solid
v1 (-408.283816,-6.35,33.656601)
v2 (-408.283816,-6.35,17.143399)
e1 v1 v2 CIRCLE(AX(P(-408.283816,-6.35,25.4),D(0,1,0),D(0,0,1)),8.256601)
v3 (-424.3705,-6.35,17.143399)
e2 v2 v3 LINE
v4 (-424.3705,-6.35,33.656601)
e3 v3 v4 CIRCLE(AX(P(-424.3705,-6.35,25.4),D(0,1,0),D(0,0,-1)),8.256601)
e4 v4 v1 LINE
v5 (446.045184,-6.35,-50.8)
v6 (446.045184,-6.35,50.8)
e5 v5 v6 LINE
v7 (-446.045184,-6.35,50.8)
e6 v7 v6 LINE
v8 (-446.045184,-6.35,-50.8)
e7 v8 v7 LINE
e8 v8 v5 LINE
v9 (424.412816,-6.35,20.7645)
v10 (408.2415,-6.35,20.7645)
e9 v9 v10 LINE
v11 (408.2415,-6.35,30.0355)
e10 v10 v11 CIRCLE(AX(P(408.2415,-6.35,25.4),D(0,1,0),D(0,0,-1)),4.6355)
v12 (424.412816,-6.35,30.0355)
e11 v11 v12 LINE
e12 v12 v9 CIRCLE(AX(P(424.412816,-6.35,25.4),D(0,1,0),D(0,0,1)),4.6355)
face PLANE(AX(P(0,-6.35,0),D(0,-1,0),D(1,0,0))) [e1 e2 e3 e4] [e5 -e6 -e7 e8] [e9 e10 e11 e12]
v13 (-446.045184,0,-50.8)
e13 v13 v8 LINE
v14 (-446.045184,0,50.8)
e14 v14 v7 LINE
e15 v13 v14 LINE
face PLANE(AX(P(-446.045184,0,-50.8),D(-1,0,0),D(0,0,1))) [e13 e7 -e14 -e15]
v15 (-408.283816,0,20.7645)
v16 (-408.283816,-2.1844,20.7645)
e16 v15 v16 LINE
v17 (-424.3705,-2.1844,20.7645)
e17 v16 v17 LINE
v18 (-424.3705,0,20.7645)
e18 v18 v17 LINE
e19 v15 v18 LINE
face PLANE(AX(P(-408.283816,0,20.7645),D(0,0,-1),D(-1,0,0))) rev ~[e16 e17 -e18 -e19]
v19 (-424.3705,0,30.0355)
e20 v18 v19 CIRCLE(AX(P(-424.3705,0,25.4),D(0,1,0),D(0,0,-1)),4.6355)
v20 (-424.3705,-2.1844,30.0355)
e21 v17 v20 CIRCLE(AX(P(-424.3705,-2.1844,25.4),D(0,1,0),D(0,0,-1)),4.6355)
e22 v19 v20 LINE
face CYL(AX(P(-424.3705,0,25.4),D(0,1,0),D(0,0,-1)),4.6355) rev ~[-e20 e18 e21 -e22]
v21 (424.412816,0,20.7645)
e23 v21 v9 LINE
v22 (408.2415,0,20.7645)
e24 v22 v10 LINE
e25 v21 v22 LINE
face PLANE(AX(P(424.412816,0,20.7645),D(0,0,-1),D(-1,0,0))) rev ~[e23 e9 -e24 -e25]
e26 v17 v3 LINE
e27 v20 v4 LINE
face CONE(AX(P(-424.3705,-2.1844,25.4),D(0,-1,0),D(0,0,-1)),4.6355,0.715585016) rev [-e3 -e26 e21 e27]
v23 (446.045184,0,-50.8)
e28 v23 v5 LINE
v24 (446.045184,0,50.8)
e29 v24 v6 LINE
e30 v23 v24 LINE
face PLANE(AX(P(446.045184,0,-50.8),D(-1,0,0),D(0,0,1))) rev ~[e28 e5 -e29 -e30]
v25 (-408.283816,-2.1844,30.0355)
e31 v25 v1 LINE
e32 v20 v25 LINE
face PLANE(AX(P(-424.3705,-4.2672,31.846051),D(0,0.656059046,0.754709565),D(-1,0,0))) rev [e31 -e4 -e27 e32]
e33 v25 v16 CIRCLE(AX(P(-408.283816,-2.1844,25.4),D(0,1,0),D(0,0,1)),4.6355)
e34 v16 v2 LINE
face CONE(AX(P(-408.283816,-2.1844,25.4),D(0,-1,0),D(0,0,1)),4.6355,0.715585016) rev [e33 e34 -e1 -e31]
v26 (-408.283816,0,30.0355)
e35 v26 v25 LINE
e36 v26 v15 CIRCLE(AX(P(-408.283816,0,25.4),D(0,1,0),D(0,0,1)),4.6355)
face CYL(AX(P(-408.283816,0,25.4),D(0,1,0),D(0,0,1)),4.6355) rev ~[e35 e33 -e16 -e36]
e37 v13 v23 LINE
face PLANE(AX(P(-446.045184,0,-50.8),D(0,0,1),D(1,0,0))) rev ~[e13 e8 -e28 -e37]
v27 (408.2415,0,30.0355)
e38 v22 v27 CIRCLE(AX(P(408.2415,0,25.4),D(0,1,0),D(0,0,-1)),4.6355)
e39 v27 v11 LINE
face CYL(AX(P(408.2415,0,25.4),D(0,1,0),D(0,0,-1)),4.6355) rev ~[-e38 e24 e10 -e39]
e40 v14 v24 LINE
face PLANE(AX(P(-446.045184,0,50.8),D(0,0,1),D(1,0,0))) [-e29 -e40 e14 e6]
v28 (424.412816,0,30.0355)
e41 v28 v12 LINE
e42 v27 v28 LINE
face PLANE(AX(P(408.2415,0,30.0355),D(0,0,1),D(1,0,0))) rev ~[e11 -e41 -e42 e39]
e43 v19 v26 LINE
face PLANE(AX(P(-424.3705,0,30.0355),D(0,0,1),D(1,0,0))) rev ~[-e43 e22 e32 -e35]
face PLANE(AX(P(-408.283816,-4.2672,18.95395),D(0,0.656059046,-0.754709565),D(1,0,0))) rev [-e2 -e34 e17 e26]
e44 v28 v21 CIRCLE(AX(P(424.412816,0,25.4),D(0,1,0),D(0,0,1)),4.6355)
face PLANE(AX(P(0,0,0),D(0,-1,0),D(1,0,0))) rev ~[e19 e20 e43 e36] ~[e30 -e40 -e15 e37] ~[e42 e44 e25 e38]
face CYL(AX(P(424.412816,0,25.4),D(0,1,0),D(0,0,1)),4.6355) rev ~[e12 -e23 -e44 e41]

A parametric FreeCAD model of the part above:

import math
import FreeCAD as App
import Part
import Sketcher
from FreeCAD import Vector
Q = App.Units.Quantity


def edges_at(feature, points):
    """Names of the edges that pass closest to the given points."""
    edges = feature.Shape.Edges
    near = lambda p: min(range(len(edges)), key=lambda i: edges[i].distToShape(Part.Vertex(*p))[0])
    return sorted({f"Edge{near(p) + 1}" for p in points})

doc = App.newDocument("Part")
body = doc.addObject("PartDesign::Body", "Body")

# Sketch on XZ plane
sketch1 = doc.addObject("Sketcher::SketchObject", "Sketch")
body.addObject(sketch1)
sketch1.AttachmentSupport = (doc.XZ_Plane, [""])
sketch1.MapMode = "FlatFace"
sketch1.addGeometry([
    Part.LineSegment(Vector(-446.045184, 50.8, 0), Vector(-446.045184, -50.8, 0)),  # 0
    Part.LineSegment(Vector(-446.045184, -50.8, 0), Vector(446.045184, -50.8, 0)),  # 1
    Part.LineSegment(Vector(446.045184, -50.8, 0), Vector(446.045184, 50.8, 0)),  # 2
    Part.LineSegment(Vector(446.045184, 50.8, 0), Vector(-446.045184, 50.8, 0)),  # 3
    Part.LineSegment(Vector(-424.3705, 30.0355, 0), Vector(-408.283816, 30.0355, 0)),  # 4
    Part.ArcOfCircle(Part.Circle(Vector(-408.283816, 25.4, 0), Vector(0, 0, 1), 4.6355), math.radians(-90), math.radians(90)),  # 5
    Part.LineSegment(Vector(-408.283816, 20.7645, 0), Vector(-424.3705, 20.7645, 0)),  # 6
    Part.ArcOfCircle(Part.Circle(Vector(-424.3705, 25.4, 0), Vector(0, 0, 1), 4.6355), math.radians(90), math.radians(270)),  # 7
    Part.LineSegment(Vector(408.2415, 30.0355, 0), Vector(424.412816, 30.0355, 0)),  # 8
    Part.ArcOfCircle(Part.Circle(Vector(424.412816, 25.4, 0), Vector(0, 0, 1), 4.6355), math.radians(-90), math.radians(90)),  # 9
    Part.LineSegment(Vector(424.412816, 20.7645, 0), Vector(408.2415, 20.7645, 0)),  # 10
    Part.ArcOfCircle(Part.Circle(Vector(408.2415, 25.4, 0), Vector(0, 0, 1), 4.6355), math.radians(90), math.radians(270)),  # 11
], False)
sketch1.addConstraint([
    Sketcher.Constraint("Coincident", 0, 2, 1, 1),
    Sketcher.Constraint("Coincident", 1, 2, 2, 1),
    Sketcher.Constraint("Coincident", 2, 2, 3, 1),
    Sketcher.Constraint("Coincident", 3, 2, 0, 1),
    Sketcher.Constraint("Tangent", 4, 2, 5, 2),
    Sketcher.Constraint("Tangent", 5, 1, 6, 1),
    Sketcher.Constraint("Tangent", 6, 2, 7, 2),
    Sketcher.Constraint("Tangent", 7, 1, 4, 1),
    Sketcher.Constraint("Tangent", 8, 2, 9, 2),
    Sketcher.Constraint("Tangent", 9, 1, 10, 1),
    Sketcher.Constraint("Tangent", 10, 2, 11, 2),
    Sketcher.Constraint("Tangent", 11, 1, 8, 1),
    Sketcher.Constraint("Vertical", 0),
    Sketcher.Constraint("Horizontal", 1),
    Sketcher.Constraint("Vertical", 2),
    Sketcher.Constraint("Horizontal", 3),
    Sketcher.Constraint("Horizontal", 4),
    Sketcher.Constraint("Horizontal", 6),
    Sketcher.Constraint("Horizontal", 8),
    Sketcher.Constraint("Horizontal", 10),
    Sketcher.Constraint("Equal", 7, 9),
    Sketcher.Constraint("Symmetric", 0, 2, 2, 2, -1, 1),
    Sketcher.Constraint("Horizontal", 7, 3, 9, 3),
    Sketcher.Constraint("DistanceY", 0, 2, 0, 1, Q("4 in")),
    Sketcher.Constraint("DistanceY", -1, 1, 5, 3, Q("1 in")),
    Sketcher.Constraint("Radius", 5, Q("0.1825 in")),
    Sketcher.Constraint("DistanceX", 7, 3, 11, 3, Q("32.78 in")),
    Sketcher.Constraint("DistanceX", 0, 2, 9, 3, Q("34.27 in")),
    Sketcher.Constraint("DistanceX", 5, 3, 1, 2, Q("33.635 in")),
    Sketcher.Constraint("DistanceX", 7, 3, -1, 1, Q("16.7075 in")),
    Sketcher.Constraint("DistanceX", 1, 1, 1, 2, 892.090368),
])
pad1 = doc.addObject("PartDesign::Pad", "Pad")
body.addObject(pad1)
pad1.Profile = sketch1
pad1.Length = Q("0.25 in")
doc.recompute()

chamfer = doc.addObject("PartDesign::Chamfer", "Chamfer")
body.addObject(chamfer)
chamfer.Base = (pad1, edges_at(pad1, [(-416.327, -6.35, 30.035)]))
chamfer.ChamferType = "Two distances"
chamfer.Size = Q("0.164 in")
chamfer.Size2 = 3.621101

doc.recompute()
